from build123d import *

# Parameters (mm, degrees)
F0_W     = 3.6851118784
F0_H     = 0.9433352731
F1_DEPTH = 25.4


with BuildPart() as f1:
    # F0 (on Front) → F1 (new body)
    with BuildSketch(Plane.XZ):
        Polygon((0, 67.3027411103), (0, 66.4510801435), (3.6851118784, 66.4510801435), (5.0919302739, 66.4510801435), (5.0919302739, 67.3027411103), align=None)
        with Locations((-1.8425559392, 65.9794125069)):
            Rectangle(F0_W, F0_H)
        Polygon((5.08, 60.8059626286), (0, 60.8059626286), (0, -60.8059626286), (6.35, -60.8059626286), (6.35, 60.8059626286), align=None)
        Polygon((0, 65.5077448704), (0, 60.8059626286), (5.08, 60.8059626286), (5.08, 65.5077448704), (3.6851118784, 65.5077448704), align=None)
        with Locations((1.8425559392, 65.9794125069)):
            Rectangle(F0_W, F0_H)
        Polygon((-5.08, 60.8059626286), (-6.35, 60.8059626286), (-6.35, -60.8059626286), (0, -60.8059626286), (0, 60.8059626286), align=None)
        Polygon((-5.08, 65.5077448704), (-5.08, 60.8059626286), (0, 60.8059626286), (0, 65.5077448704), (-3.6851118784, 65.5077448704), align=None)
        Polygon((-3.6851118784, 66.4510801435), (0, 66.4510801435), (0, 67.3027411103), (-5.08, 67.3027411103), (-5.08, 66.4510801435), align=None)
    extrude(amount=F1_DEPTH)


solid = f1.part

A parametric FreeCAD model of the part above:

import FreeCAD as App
import Part
import Sketcher
Q = App.Units.Quantity

doc = App.newDocument("Part")
params = doc.addObject("Spreadsheet::Sheet", "Params")
for row, (alias, value) in enumerate([
    ("sketch1_width", "0.5 in"),
    ("sketch1_width2", "0.05 in"),
    ("pad1_length", "1 in"),
], start=1):
    params.set(f"A{row}", alias)
    params.set(f"B{row}", "=" + value)
    params.setAlias(f"B{row}", alias)

body = doc.addObject("PartDesign::Body", "Body")

# Sketch on XZ plane
sketch1 = doc.addObject("Sketcher::SketchObject", "Sketch")
body.addObject(sketch1)
sketch1.AttachmentSupport = (doc.XZ_Plane, [""])
sketch1.MapMode = "FlatFace"
sketch1.addGeometry([
    Part.LineSegment(App.Vector(-3.7, 66.5, 0), App.Vector(-3.7, 65.5, 0)),  # 0
    Part.LineSegment(App.Vector(-3.7, 65.5, 0), App.Vector(-5.1, 65.5, 0)),  # 1
    Part.LineSegment(App.Vector(-5.1, 65.5, 0), App.Vector(-5.1, 60.8, 0)),  # 2
    Part.LineSegment(App.Vector(-5.1, 60.8, 0), App.Vector(-6.3, 60.8, 0)),  # 3
    Part.LineSegment(App.Vector(-6.3, 60.8, 0), App.Vector(-6.3, -60.8, 0)),  # 4
    Part.LineSegment(App.Vector(-6.3, -60.8, 0), App.Vector(6.3, -60.8, 0)),  # 5
    Part.LineSegment(App.Vector(6.3, -60.8, 0), App.Vector(6.3, 60.8, 0)),  # 6
    Part.LineSegment(App.Vector(6.3, 60.8, 0), App.Vector(5.1, 60.8, 0)),  # 7
    Part.LineSegment(App.Vector(5.1, 60.8, 0), App.Vector(5.1, 65.5, 0)),  # 8
    Part.LineSegment(App.Vector(5.1, 65.5, 0), App.Vector(3.7, 65.5, 0)),  # 9
    Part.LineSegment(App.Vector(3.7, 65.5, 0), App.Vector(3.7, 66.5, 0)),  # 10
    Part.LineSegment(App.Vector(3.7, 66.5, 0), App.Vector(5.1, 66.5, 0)),  # 11
    Part.LineSegment(App.Vector(5.1, 66.5, 0), App.Vector(5.1, 67.3, 0)),  # 12
    Part.LineSegment(App.Vector(5.1, 67.3, 0), App.Vector(-5.1, 67.3, 0)),  # 13
    Part.LineSegment(App.Vector(-5.1, 67.3, 0), App.Vector(-5.1, 66.5, 0)),  # 14
    Part.LineSegment(App.Vector(-5.1, 66.5, 0), App.Vector(-3.7, 66.5, 0)),  # 15
], False)
sketch1.addConstraint([
    Sketcher.Constraint("Coincident", 0, 2, 1, 1),
    Sketcher.Constraint("Coincident", 1, 2, 2, 1),
    Sketcher.Constraint("Coincident", 2, 2, 3, 1),
    Sketcher.Constraint("Coincident", 3, 2, 4, 1),
    Sketcher.Constraint("Coincident", 4, 2, 5, 1),
    Sketcher.Constraint("Coincident", 5, 2, 6, 1),
    Sketcher.Constraint("Coincident", 6, 2, 7, 1),
    Sketcher.Constraint("Coincident", 7, 2, 8, 1),
    Sketcher.Constraint("Coincident", 8, 2, 9, 1),
    Sketcher.Constraint("Coincident", 9, 2, 10, 1),
    Sketcher.Constraint("Coincident", 10, 2, 11, 1),
    Sketcher.Constraint("Coincident", 11, 2, 12, 1),
    Sketcher.Constraint("Coincident", 12, 2, 13, 1),
    Sketcher.Constraint("Coincident", 13, 2, 14, 1),
    Sketcher.Constraint("Coincident", 14, 2, 15, 1),
    Sketcher.Constraint("Coincident", 15, 2, 0, 1),
    Sketcher.Constraint("Vertical", 0),
    Sketcher.Constraint("Horizontal", 1),
    Sketcher.Constraint("Vertical", 2),
    Sketcher.Constraint("Horizontal", 3),
    Sketcher.Constraint("Vertical", 4),
    Sketcher.Constraint("Horizontal", 5),
    Sketcher.Constraint("Vertical", 6),
    Sketcher.Constraint("Horizontal", 7),
    Sketcher.Constraint("Vertical", 8),
    Sketcher.Constraint("Horizontal", 9),
    Sketcher.Constraint("Vertical", 10),
    Sketcher.Constraint("Horizontal", 11),
    Sketcher.Constraint("Vertical", 12),
    Sketcher.Constraint("Horizontal", 13),
    Sketcher.Constraint("Vertical", 14),
    Sketcher.Constraint("Horizontal", 15),
    Sketcher.Constraint("Symmetric", 3, 2, 5, 2, -1, 1),
    Sketcher.Constraint("Symmetric", 2, 2, 7, 2, -2),
    Sketcher.Constraint("Symmetric", 0, 2, 9, 2, -2),
    Sketcher.Constraint("Horizontal", 11, 2, 14, 2),
    Sketcher.Constraint("Vertical", 2, 2, 13, 2),
    Sketcher.Constraint("DistanceX", 5, 1, 5, 2, Q("0.5 in")),
    Sketcher.Constraint("DistanceX", 3, 2, 3, 1, Q("0.05 in")),
    Sketcher.Constraint("DistanceX", 1, 2, 1, 1, Q("1.394888 mm")),
    Sketcher.Constraint("DistanceX", 11, 1, 11, 2, Q("1.406818 mm")),
    Sketcher.Constraint("DistanceY", 12, 1, 12, 2, Q("0.851661 mm")),
    Sketcher.Constraint("DistanceY", 0, 2, 0, 1, Q("0.943335 mm")),
    Sketcher.Constraint("DistanceY", 2, 2, 2, 1, Q("4.701782 mm")),
    Sketcher.Constraint("DistanceY", 4, 2, 4, 1, Q("121.611925 mm")),
])
sketch1.setExpression("Constraints[37]", "Params.sketch1_width")
sketch1.setExpression("Constraints[38]", "Params.sketch1_width2")
pad1 = doc.addObject("PartDesign::Pad", "Pad")
body.addObject(pad1)
pad1.Profile = sketch1
pad1.setExpression("Length", "Params.pad1_length")

doc.recompute()
